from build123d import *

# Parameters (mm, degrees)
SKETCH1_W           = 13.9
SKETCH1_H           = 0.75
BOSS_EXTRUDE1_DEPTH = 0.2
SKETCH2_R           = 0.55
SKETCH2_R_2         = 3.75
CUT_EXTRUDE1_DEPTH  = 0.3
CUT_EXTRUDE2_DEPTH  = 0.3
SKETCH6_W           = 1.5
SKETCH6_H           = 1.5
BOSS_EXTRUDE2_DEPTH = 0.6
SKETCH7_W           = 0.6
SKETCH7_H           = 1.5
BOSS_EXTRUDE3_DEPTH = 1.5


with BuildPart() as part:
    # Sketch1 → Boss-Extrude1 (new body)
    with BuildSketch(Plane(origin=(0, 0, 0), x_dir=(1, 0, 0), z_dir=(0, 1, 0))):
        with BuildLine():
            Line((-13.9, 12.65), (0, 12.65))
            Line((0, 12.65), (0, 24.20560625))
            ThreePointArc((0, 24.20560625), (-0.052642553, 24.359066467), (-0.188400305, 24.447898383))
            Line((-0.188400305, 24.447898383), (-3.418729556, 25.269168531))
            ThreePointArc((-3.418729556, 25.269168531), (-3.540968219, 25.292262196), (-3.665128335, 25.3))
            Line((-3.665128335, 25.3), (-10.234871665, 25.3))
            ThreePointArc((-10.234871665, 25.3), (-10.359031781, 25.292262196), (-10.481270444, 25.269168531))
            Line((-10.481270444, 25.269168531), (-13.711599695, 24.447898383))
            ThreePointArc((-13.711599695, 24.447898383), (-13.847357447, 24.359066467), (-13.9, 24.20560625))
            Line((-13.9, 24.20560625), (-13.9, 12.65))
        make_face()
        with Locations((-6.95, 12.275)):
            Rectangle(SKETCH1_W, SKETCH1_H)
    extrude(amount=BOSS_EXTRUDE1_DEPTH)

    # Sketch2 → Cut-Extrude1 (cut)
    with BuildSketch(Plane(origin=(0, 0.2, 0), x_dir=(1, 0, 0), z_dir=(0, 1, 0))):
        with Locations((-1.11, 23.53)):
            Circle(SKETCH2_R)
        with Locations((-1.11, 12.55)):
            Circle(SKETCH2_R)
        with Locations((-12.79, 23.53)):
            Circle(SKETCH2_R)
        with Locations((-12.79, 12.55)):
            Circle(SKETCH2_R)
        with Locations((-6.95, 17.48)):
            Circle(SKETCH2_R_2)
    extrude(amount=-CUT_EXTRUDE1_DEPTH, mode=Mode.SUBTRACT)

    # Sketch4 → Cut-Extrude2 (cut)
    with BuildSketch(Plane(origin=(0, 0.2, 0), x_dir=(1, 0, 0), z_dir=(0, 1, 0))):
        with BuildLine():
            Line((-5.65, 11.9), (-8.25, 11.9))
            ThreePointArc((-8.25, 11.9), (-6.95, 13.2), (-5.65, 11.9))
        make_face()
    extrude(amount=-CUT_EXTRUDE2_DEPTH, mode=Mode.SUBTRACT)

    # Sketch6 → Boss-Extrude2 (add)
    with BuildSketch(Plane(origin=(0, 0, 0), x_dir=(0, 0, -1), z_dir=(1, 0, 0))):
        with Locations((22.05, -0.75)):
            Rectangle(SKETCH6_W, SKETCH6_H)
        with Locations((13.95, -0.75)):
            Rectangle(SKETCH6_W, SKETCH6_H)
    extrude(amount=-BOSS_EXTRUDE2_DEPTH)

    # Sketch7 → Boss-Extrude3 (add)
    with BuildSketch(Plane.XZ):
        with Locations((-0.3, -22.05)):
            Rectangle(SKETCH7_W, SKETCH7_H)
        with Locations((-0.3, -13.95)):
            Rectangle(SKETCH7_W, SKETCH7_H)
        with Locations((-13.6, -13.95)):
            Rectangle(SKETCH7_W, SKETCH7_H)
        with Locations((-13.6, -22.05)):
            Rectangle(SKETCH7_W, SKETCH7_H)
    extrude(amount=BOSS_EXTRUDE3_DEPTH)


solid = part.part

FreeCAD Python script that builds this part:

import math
import FreeCAD as App
import Part
import Sketcher
from FreeCAD import Vector

doc = App.newDocument("Part")
params = doc.addObject("Spreadsheet::Sheet", "Params")
for row, (alias, value) in enumerate([
    ("sketch1_radius", "1 mm"),
    ("sketch1_radius2", "0.25 mm"),
    ("sketch1_width", "13.9 mm"),
    ("pad1_length", "0.2 mm"),
    ("sketch2_diameter", "1.1 mm"),
    ("sketch2_diameter2", "7.5 mm"),
    ("pocket1_length", "0.3 mm"),
    ("sketch3_radius", "1.3 mm"),
    ("pocket2_length", "0.3 mm"),
    ("sketch4_width", "1.5 mm"),
    ("pad2_length", "0.6 mm"),
    ("sketch5_width", "0.6 mm"),
    ("sketch5_height", "1.5 mm"),
    ("pad3_length", "1.5 mm"),
], start=1):
    params.set(f"A{row}", alias)
    params.set(f"B{row}", "=" + value)
    params.setAlias(f"B{row}", alias)

body = doc.addObject("PartDesign::Body", "Body")

# Sketch on XZ plane
sketch1 = body.newObject("Sketcher::SketchObject", "Sketch")
sketch1.AttachmentSupport = (doc.getObject("XZ_Plane"), [""])
sketch1.MapMode = "FlatFace"
sketch1.addGeometry([
    Part.ArcOfCircle(Part.Circle(Vector(-0.25, -24.21, 0), Vector(0, 0, 1), 0.25), math.radians(-76), math.radians(0)),  # 0
    Part.LineSegment(Vector(-0.19, -24.45, 0), Vector(-3.42, -25.27, 0)),  # 1
    Part.ArcOfCircle(Part.Circle(Vector(-3.67, -24.3, 0), Vector(0, 0, 1), 1), math.radians(-90), math.radians(-75.74)),  # 2
    Part.LineSegment(Vector(-3.67, -25.3, 0), Vector(-10.23, -25.3, 0)),  # 3
    Part.ArcOfCircle(Part.Circle(Vector(-10.23, -24.3, 0), Vector(0, 0, 1), 1), math.radians(-104.26), math.radians(-90)),  # 4
    Part.LineSegment(Vector(-10.48, -25.27, 0), Vector(-13.71, -24.45, 0)),  # 5
    Part.ArcOfCircle(Part.Circle(Vector(-13.65, -24.21, 0), Vector(0, 0, 1), 0.25), math.radians(180), math.radians(256)),  # 6
    Part.LineSegment(Vector(-13.9, -24.21, 0), Vector(-13.9, -11.9, 0)),  # 7
    Part.LineSegment(Vector(-13.9, -11.9, 0), Vector(0, -11.9, 0)),  # 8
    Part.LineSegment(Vector(0, -11.9, 0), Vector(0, -24.21, 0)),  # 9
], False)
sketch1.addConstraint([
    Sketcher.Constraint("Tangent", 0, 1, 1, 1),
    Sketcher.Constraint("Tangent", 1, 2, 2, 2),
    Sketcher.Constraint("Tangent", 2, 1, 3, 1),
    Sketcher.Constraint("Tangent", 3, 2, 4, 2),
    Sketcher.Constraint("Tangent", 4, 1, 5, 1),
    Sketcher.Constraint("Tangent", 5, 2, 6, 2),
    Sketcher.Constraint("Tangent", 6, 1, 7, 1),
    Sketcher.Constraint("Coincident", 7, 2, 8, 1),
    Sketcher.Constraint("Coincident", 8, 2, 9, 1),
    Sketcher.Constraint("Tangent", 9, 2, 0, 2),
    Sketcher.Constraint("Horizontal", 3),
    Sketcher.Constraint("Vertical", 7),
    Sketcher.Constraint("Horizontal", 8),
    Sketcher.Constraint("Vertical", 9),
    Sketcher.Constraint("Equal", 2, 4),
    Sketcher.Constraint("Equal", 0, 6),
    Sketcher.Constraint("PointOnObject", 8, 2, -2),
    Sketcher.Constraint("Horizontal", 0, 3, 6, 3),
    Sketcher.Constraint("Horizontal", 1, 2, 4, 1),
    Sketcher.Constraint("Radius", 2, 1.0),
    Sketcher.Constraint("Radius", 0, 0.25),
    Sketcher.Constraint("DistanceX", 8, 1, 8, 2, 13.9),
    Sketcher.Constraint("DistanceY", 2, 3, -1, 1, 24.3),
    Sketcher.Constraint("DistanceY", 7, 2, -1, 1, 11.9),
    Sketcher.Constraint("DistanceX", 0, 1, -1, 1, 0.1884),
    Sketcher.Constraint("DistanceY", 0, 1, -1, 1, 24.447898),
])
sketch1.setExpression("Constraints[19]", "Params.sketch1_radius")
sketch1.setExpression("Constraints[20]", "Params.sketch1_radius2")
sketch1.setExpression("Constraints[21]", "Params.sketch1_width")
pad1 = body.newObject("PartDesign::Pad", "Pad")
pad1.Profile = sketch1
pad1.setExpression("Length", "Params.pad1_length")
pad1.Reversed = True

# Sketch on XZ plane
sketch2 = body.newObject("Sketcher::SketchObject", "Sketch001")
sketch2.AttachmentSupport = (doc.getObject("XZ_Plane"), [""])
sketch2.MapMode = "FlatFace"
sketch2.AttachmentOffset = App.Placement(Vector(0, 0, -0.2), App.Rotation())
sketch2.addGeometry([
    Part.Circle(Vector(-1.1, -23.5, 0), Vector(0, 0, 1), 0.6),  # 0
    Part.Circle(Vector(-1.1, -12.6, 0), Vector(0, 0, 1), 0.6),  # 1
    Part.Circle(Vector(-12.8, -23.5, 0), Vector(0, 0, 1), 0.6),  # 2
    Part.Circle(Vector(-12.8, -12.6, 0), Vector(0, 0, 1), 0.6),  # 3
    Part.Circle(Vector(-7, -17.5, 0), Vector(0, 0, 1), 3.8),  # 4
], False)
sketch2.addConstraint([
    Sketcher.Constraint("Equal", 0, 1),
    Sketcher.Constraint("Equal", 1, 2),
    Sketcher.Constraint("Equal", 2, 3),
    Sketcher.Constraint("Horizontal", 0, 3, 2, 3),
    Sketcher.Constraint("Horizontal", 1, 3, 3, 3),
    Sketcher.Constraint("Vertical", 0, 3, 1, 3),
    Sketcher.Constraint("Vertical", 2, 3, 3, 3),
    Sketcher.Constraint("Diameter", 0, 1.1),
    Sketcher.Constraint("Diameter", 4, 7.5),
    Sketcher.Constraint("DistanceX", 0, 3, -1, 1, 1.11),
    Sketcher.Constraint("DistanceY", 0, 3, -1, 1, 23.53),
    Sketcher.Constraint("DistanceY", 1, 3, -1, 1, 12.55),
    Sketcher.Constraint("DistanceX", 2, 3, -1, 1, 12.79),
    Sketcher.Constraint("DistanceX", 4, 3, -1, 1, 6.95),
    Sketcher.Constraint("DistanceY", 4, 3, -1, 1, 17.48),
])
sketch2.setExpression("Constraints[7]", "Params.sketch2_diameter")
sketch2.setExpression("Constraints[8]", "Params.sketch2_diameter2")
pocket1 = body.newObject("PartDesign::Pocket", "Pocket")
pocket1.Profile = sketch2
pocket1.setExpression("Length", "Params.pocket1_length")
pocket1.Reversed = True

# Sketch on XZ plane
sketch3 = body.newObject("Sketcher::SketchObject", "Sketch002")
sketch3.AttachmentSupport = (doc.getObject("XZ_Plane"), [""])
sketch3.MapMode = "FlatFace"
sketch3.AttachmentOffset = App.Placement(Vector(0, 0, -0.2), App.Rotation())
sketch3.addGeometry([
    Part.LineSegment(Vector(-8.2, -11.9, 0), Vector(-5.7, -11.9, 0)),
    Part.ArcOfCircle(Part.Circle(Vector(-7, -11.9, 0), Vector(0, 0, 1), 1.3), math.radians(180), math.radians(360)),
], False)
sketch3.addConstraint([
    Sketcher.Constraint("Coincident", 0, 1, 1, 1),
    Sketcher.Constraint("Coincident", 1, 2, 0, 2),
    Sketcher.Constraint("Horizontal", 0),
    Sketcher.Constraint("Horizontal", 1, 3, 0, 1),
    Sketcher.Constraint("Radius", 1, 1.3),
    Sketcher.Constraint("DistanceY", 1, 3, -1, 1, 11.9),
    Sketcher.Constraint("DistanceX", 1, 3, -1, 1, 6.95),
])
sketch3.setExpression("Constraints[4]", "Params.sketch3_radius")
pocket2 = body.newObject("PartDesign::Pocket", "Pocket001")
pocket2.Profile = sketch3
pocket2.setExpression("Length", "Params.pocket2_length")
pocket2.Reversed = True

# Sketch on YZ plane
sketch4 = body.newObject("Sketcher::SketchObject", "Sketch003")
sketch4.AttachmentSupport = (doc.getObject("YZ_Plane"), [""])
sketch4.MapMode = "FlatFace"
sketch4.addGeometry([
    Part.LineSegment(Vector(0, -21.3, 0), Vector(-1.5, -21.3, 0)),  # 0
    Part.LineSegment(Vector(-1.5, -21.3, 0), Vector(-1.5, -22.8, 0)),  # 1
    Part.LineSegment(Vector(-1.5, -22.8, 0), Vector(0, -22.8, 0)),  # 2
    Part.LineSegment(Vector(0, -22.8, 0), Vector(0, -21.3, 0)),  # 3
    Part.LineSegment(Vector(0, -13.2, 0), Vector(-1.5, -13.2, 0)),  # 4
    Part.LineSegment(Vector(-1.5, -13.2, 0), Vector(-1.5, -14.7, 0)),  # 5
    Part.LineSegment(Vector(-1.5, -14.7, 0), Vector(0, -14.7, 0)),  # 6
    Part.LineSegment(Vector(0, -14.7, 0), Vector(0, -13.2, 0)),  # 7
], False)
sketch4.addConstraint([
    Sketcher.Constraint("Coincident", 0, 2, 1, 1),
    Sketcher.Constraint("Coincident", 1, 2, 2, 1),
    Sketcher.Constraint("Coincident", 2, 2, 3, 1),
    Sketcher.Constraint("Coincident", 3, 2, 0, 1),
    Sketcher.Constraint("Coincident", 4, 2, 5, 1),
    Sketcher.Constraint("Coincident", 5, 2, 6, 1),
    Sketcher.Constraint("Coincident", 6, 2, 7, 1),
    Sketcher.Constraint("Coincident", 7, 2, 4, 1),
    Sketcher.Constraint("Horizontal", 0),
    Sketcher.Constraint("Vertical", 1),
    Sketcher.Constraint("Horizontal", 2),
    Sketcher.Constraint("Vertical", 3),
    Sketcher.Constraint("Horizontal", 4),
    Sketcher.Constraint("Vertical", 5),
    Sketcher.Constraint("Horizontal", 6),
    Sketcher.Constraint("Vertical", 7),
    Sketcher.Constraint("PointOnObject", 2, 2, -2),
    Sketcher.Constraint("PointOnObject", 6, 2, -2),
    Sketcher.Constraint("Vertical", 1, 2, 4, 2),
    Sketcher.Constraint("Equal", 6, 1),
    Sketcher.Constraint("Equal", 3, 5),
    Sketcher.Constraint("DistanceX", 0, 2, 0, 1, 1.5),
    Sketcher.Constraint("DistanceY", 0, 2, -1, 1, 21.3),
    Sketcher.Constraint("DistanceY", 4, 2, -1, 1, 13.2),
])
sketch4.setExpression("Constraints[21]", "Params.sketch4_width")
pad2 = body.newObject("PartDesign::Pad", "Pad001")
pad2.Profile = sketch4
pad2.setExpression("Length", "Params.pad2_length")
pad2.Reversed = True

# Sketch on XZ plane
sketch5 = body.newObject("Sketcher::SketchObject", "Sketch004")
sketch5.AttachmentSupport = (doc.getObject("XZ_Plane"), [""])
sketch5.MapMode = "FlatFace"
sketch5.addGeometry([
    Part.LineSegment(Vector(-0.6, -21.3, 0), Vector(-0.6, -22.8, 0)),  # 0
    Part.LineSegment(Vector(-0.6, -22.8, 0), Vector(0, -22.8, 0)),  # 1
    Part.LineSegment(Vector(0, -22.8, 0), Vector(0, -21.3, 0)),  # 2
    Part.LineSegment(Vector(0, -21.3, 0), Vector(-0.6, -21.3, 0)),  # 3
    Part.LineSegment(Vector(-0.6, -13.2, 0), Vector(-0.6, -14.7, 0)),  # 4
    Part.LineSegment(Vector(-0.6, -14.7, 0), Vector(0, -14.7, 0)),  # 5
    Part.LineSegment(Vector(0, -14.7, 0), Vector(0, -13.2, 0)),  # 6
    Part.LineSegment(Vector(0, -13.2, 0), Vector(-0.6, -13.2, 0)),  # 7
    Part.LineSegment(Vector(-13.9, -13.2, 0), Vector(-13.9, -14.7, 0)),  # 8
    Part.LineSegment(Vector(-13.9, -14.7, 0), Vector(-13.3, -14.7, 0)),  # 9
    Part.LineSegment(Vector(-13.3, -14.7, 0), Vector(-13.3, -13.2, 0)),  # 10
    Part.LineSegment(Vector(-13.3, -13.2, 0), Vector(-13.9, -13.2, 0)),  # 11
    Part.LineSegment(Vector(-13.9, -21.3, 0), Vector(-13.9, -22.8, 0)),  # 12
    Part.LineSegment(Vector(-13.9, -22.8, 0), Vector(-13.3, -22.8, 0)),  # 13
    Part.LineSegment(Vector(-13.3, -22.8, 0), Vector(-13.3, -21.3, 0)),  # 14
    Part.LineSegment(Vector(-13.3, -21.3, 0), Vector(-13.9, -21.3, 0)),  # 15
], False)
sketch5.addConstraint([
    Sketcher.Constraint("Coincident", 0, 2, 1, 1),
    Sketcher.Constraint("Coincident", 1, 2, 2, 1),
    Sketcher.Constraint("Coincident", 2, 2, 3, 1),
    Sketcher.Constraint("Coincident", 3, 2, 0, 1),
    Sketcher.Constraint("Coincident", 4, 2, 5, 1),
    Sketcher.Constraint("Coincident", 5, 2, 6, 1),
    Sketcher.Constraint("Coincident", 6, 2, 7, 1),
    Sketcher.Constraint("Coincident", 7, 2, 4, 1),
    Sketcher.Constraint("Coincident", 8, 2, 9, 1),
    Sketcher.Constraint("Coincident", 9, 2, 10, 1),
    Sketcher.Constraint("Coincident", 10, 2, 11, 1),
    Sketcher.Constraint("Coincident", 11, 2, 8, 1),
    Sketcher.Constraint("Coincident", 12, 2, 13, 1),
    Sketcher.Constraint("Coincident", 13, 2, 14, 1),
    Sketcher.Constraint("Coincident", 14, 2, 15, 1),
    Sketcher.Constraint("Coincident", 15, 2, 12, 1),
    Sketcher.Constraint("Vertical", 0),
    Sketcher.Constraint("Horizontal", 1),
    Sketcher.Constraint("Vertical", 2),
    Sketcher.Constraint("Horizontal", 3),
    Sketcher.Constraint("Vertical", 4),
    Sketcher.Constraint("Horizontal", 5),
    Sketcher.Constraint("Vertical", 6),
    Sketcher.Constraint("Horizontal", 7),
    Sketcher.Constraint("Vertical", 8),
    Sketcher.Constraint("Horizontal", 9),
    Sketcher.Constraint("Vertical", 10),
    Sketcher.Constraint("Horizontal", 11),
    Sketcher.Constraint("Vertical", 12),
    Sketcher.Constraint("Horizontal", 13),
    Sketcher.Constraint("Vertical", 14),
    Sketcher.Constraint("Horizontal", 15),
    Sketcher.Constraint("PointOnObject", 1, 2, -2),
    Sketcher.Constraint("PointOnObject", 5, 2, -2),
    Sketcher.Constraint("Horizontal", 5, 2, 8, 2),
    Sketcher.Constraint("Horizontal", 7, 2, 10, 2),
    Sketcher.Constraint("Horizontal", 1, 2, 12, 2),
    Sketcher.Constraint("Horizontal", 3, 2, 14, 2),
    Sketcher.Constraint("Vertical", 3, 2, 4, 2),
    Sketcher.Constraint("Vertical", 11, 2, 12, 2),
    Sketcher.Constraint("Vertical", 10, 2, 13, 2),
    Sketcher.Constraint("Equal", 7, 9),
    Sketcher.Constraint("Equal", 2, 4),
    Sketcher.Constraint("DistanceX", 1, 1, 1, 2, 0.6),
    Sketcher.Constraint("DistanceY", 0, 2, 0, 1, 1.5),
    Sketcher.Constraint("DistanceY", 0, 2, -1, 1, 22.8),
    Sketcher.Constraint("DistanceY", 4, 2, -1, 1, 14.7),
    Sketcher.Constraint("DistanceX", 8, 2, -1, 1, 13.9),
])
sketch5.setExpression("Constraints[43]", "Params.sketch5_width")
sketch5.setExpression("Constraints[44]", "Params.sketch5_height")
pad3 = body.newObject("PartDesign::Pad", "Pad002")
pad3.Profile = sketch5
pad3.setExpression("Length", "Params.pad3_length")

doc.recompute()
